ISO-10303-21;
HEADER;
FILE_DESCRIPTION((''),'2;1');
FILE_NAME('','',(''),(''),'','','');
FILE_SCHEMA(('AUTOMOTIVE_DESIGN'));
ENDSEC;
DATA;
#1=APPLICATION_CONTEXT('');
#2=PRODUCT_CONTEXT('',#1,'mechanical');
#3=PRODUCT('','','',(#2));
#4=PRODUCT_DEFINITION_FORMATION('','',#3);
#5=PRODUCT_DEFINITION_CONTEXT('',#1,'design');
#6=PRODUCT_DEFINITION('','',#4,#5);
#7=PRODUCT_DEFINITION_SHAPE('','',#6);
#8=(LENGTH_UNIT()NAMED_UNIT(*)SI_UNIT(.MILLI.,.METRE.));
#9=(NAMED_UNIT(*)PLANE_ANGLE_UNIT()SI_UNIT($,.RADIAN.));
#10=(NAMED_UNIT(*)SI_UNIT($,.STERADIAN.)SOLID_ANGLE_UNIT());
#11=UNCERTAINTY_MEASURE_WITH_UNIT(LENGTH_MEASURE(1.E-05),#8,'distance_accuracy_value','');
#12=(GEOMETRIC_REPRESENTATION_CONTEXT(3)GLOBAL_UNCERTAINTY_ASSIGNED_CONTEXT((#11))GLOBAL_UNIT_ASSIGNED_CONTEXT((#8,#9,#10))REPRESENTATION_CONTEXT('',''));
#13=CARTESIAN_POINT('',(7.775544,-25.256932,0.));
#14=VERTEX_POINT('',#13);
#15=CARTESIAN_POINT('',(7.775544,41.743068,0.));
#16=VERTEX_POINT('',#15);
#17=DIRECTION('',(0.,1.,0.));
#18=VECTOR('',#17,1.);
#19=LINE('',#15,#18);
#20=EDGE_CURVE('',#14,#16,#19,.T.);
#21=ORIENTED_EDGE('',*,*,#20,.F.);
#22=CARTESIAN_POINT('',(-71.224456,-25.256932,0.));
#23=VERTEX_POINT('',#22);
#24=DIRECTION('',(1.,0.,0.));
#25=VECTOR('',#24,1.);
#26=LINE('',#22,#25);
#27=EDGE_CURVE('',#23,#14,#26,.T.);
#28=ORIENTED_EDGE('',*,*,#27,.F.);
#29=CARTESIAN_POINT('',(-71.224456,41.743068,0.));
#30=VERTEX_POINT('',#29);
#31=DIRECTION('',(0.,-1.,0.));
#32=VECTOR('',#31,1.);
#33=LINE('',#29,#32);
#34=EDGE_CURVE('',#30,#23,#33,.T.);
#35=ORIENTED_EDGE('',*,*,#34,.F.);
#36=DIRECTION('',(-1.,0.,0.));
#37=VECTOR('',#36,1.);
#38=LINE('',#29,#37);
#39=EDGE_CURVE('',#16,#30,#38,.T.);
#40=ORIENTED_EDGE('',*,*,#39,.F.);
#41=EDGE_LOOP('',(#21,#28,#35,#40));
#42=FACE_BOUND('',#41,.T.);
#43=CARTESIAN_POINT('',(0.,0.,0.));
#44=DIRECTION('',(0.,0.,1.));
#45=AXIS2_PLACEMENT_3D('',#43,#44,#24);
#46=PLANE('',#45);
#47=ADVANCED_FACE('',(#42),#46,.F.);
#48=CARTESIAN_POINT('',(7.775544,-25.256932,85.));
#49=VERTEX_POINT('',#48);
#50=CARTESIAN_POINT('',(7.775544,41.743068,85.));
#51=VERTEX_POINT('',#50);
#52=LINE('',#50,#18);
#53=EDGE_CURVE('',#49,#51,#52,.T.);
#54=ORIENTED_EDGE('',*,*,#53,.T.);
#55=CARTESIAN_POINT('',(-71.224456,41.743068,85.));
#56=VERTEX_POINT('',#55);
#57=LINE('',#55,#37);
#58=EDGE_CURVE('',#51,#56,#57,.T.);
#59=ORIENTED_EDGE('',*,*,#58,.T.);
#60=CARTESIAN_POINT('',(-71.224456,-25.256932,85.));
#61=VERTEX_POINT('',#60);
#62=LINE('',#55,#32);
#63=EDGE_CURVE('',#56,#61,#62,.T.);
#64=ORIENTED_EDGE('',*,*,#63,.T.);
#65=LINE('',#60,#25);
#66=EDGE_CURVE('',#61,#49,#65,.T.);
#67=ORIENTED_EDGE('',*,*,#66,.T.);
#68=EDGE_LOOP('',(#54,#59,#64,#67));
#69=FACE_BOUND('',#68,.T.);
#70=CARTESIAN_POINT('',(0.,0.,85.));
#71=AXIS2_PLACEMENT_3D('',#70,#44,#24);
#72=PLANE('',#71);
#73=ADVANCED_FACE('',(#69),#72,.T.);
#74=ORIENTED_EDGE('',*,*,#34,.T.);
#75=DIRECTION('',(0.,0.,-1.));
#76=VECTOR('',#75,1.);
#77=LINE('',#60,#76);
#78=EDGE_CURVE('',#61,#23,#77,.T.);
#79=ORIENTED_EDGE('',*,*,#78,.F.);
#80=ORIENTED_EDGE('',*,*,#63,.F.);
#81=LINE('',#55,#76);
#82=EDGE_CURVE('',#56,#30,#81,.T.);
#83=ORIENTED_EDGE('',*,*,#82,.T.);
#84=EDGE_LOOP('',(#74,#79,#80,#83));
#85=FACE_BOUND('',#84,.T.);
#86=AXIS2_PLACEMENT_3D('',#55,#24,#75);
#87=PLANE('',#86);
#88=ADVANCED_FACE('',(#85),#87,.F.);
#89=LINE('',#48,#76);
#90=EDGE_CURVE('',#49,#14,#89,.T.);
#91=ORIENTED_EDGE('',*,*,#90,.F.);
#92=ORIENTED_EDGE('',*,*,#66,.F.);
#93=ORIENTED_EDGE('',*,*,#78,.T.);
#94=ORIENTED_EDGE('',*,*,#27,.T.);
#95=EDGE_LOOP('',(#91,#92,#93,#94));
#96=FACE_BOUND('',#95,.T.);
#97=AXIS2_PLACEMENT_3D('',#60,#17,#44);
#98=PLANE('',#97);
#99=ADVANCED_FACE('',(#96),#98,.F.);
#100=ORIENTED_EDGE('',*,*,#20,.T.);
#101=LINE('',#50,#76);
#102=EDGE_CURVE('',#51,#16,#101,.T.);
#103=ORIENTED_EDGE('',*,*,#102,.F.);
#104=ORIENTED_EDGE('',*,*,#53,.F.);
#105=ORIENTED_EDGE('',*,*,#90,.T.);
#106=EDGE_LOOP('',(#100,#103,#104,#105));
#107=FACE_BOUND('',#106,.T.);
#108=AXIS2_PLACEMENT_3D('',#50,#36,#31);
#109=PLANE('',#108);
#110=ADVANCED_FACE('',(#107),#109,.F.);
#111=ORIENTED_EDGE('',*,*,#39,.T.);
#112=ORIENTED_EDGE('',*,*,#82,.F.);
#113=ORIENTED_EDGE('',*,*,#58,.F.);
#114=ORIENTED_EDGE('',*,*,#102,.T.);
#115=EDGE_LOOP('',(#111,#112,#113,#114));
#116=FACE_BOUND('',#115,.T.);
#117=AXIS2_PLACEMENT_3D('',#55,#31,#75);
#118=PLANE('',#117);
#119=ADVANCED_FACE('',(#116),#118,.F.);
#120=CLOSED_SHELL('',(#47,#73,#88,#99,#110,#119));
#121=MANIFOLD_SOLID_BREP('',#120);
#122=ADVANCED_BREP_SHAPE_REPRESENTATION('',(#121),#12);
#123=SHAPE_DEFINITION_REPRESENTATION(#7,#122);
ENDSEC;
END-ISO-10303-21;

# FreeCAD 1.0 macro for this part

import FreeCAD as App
import Part
import Sketcher
from FreeCAD import Vector

doc = App.newDocument("Part")
params = doc.addObject("Spreadsheet::Sheet", "Params")
for row, (alias, value) in enumerate([
    ("sketch1_width", "79 mm"),
    ("sketch1_height", "67 mm"),
    ("pad1_length", "85 mm"),
], start=1):
    params.set(f"A{row}", alias)
    params.set(f"B{row}", "=" + value)
    params.setAlias(f"B{row}", alias)

body = doc.addObject("PartDesign::Body", "Body")

# Sketch on XY plane
sketch1 = doc.addObject("Sketcher::SketchObject", "Sketch")
body.addObject(sketch1)
sketch1.AttachmentSupport = (doc.XY_Plane, [""])
sketch1.MapMode = "FlatFace"
sketch1.addGeometry([
    Part.LineSegment(Vector(-71.224456, 41.743068, 0), Vector(-71.224456, -25.256932, 0)),
    Part.LineSegment(Vector(-71.224456, -25.256932, 0), Vector(7.775544, -25.256932, 0)),
    Part.LineSegment(Vector(7.775544, -25.256932, 0), Vector(7.775544, 41.743068, 0)),
    Part.LineSegment(Vector(7.775544, 41.743068, 0), Vector(-71.224456, 41.743068, 0)),
], False)
sketch1.addConstraint([
    Sketcher.Constraint("Coincident", 0, 2, 1, 1),
    Sketcher.Constraint("Coincident", 1, 2, 2, 1),
    Sketcher.Constraint("Coincident", 2, 2, 3, 1),
    Sketcher.Constraint("Coincident", 3, 2, 0, 1),
    Sketcher.Constraint("Vertical", 0),
    Sketcher.Constraint("Horizontal", 1),
    Sketcher.Constraint("Vertical", 2),
    Sketcher.Constraint("Horizontal", 3),
    Sketcher.Constraint("DistanceX", 1, 1, 1, 2, 79.0),
    Sketcher.Constraint("DistanceY", 0, 2, 0, 1, 67.0),
    Sketcher.Constraint("DistanceX", 0, 2, -1, 1, 71.224456),
    Sketcher.Constraint("DistanceY", 0, 2, -1, 1, 25.256932),
])
sketch1.setExpression("Constraints[8]", "Params.sketch1_width")
sketch1.setExpression("Constraints[9]", "Params.sketch1_height")
pad1 = doc.addObject("PartDesign::Pad", "Pad")
body.addObject(pad1)
pad1.Profile = sketch1
pad1.setExpression("Length", "Params.pad1_length")

doc.recompute()
